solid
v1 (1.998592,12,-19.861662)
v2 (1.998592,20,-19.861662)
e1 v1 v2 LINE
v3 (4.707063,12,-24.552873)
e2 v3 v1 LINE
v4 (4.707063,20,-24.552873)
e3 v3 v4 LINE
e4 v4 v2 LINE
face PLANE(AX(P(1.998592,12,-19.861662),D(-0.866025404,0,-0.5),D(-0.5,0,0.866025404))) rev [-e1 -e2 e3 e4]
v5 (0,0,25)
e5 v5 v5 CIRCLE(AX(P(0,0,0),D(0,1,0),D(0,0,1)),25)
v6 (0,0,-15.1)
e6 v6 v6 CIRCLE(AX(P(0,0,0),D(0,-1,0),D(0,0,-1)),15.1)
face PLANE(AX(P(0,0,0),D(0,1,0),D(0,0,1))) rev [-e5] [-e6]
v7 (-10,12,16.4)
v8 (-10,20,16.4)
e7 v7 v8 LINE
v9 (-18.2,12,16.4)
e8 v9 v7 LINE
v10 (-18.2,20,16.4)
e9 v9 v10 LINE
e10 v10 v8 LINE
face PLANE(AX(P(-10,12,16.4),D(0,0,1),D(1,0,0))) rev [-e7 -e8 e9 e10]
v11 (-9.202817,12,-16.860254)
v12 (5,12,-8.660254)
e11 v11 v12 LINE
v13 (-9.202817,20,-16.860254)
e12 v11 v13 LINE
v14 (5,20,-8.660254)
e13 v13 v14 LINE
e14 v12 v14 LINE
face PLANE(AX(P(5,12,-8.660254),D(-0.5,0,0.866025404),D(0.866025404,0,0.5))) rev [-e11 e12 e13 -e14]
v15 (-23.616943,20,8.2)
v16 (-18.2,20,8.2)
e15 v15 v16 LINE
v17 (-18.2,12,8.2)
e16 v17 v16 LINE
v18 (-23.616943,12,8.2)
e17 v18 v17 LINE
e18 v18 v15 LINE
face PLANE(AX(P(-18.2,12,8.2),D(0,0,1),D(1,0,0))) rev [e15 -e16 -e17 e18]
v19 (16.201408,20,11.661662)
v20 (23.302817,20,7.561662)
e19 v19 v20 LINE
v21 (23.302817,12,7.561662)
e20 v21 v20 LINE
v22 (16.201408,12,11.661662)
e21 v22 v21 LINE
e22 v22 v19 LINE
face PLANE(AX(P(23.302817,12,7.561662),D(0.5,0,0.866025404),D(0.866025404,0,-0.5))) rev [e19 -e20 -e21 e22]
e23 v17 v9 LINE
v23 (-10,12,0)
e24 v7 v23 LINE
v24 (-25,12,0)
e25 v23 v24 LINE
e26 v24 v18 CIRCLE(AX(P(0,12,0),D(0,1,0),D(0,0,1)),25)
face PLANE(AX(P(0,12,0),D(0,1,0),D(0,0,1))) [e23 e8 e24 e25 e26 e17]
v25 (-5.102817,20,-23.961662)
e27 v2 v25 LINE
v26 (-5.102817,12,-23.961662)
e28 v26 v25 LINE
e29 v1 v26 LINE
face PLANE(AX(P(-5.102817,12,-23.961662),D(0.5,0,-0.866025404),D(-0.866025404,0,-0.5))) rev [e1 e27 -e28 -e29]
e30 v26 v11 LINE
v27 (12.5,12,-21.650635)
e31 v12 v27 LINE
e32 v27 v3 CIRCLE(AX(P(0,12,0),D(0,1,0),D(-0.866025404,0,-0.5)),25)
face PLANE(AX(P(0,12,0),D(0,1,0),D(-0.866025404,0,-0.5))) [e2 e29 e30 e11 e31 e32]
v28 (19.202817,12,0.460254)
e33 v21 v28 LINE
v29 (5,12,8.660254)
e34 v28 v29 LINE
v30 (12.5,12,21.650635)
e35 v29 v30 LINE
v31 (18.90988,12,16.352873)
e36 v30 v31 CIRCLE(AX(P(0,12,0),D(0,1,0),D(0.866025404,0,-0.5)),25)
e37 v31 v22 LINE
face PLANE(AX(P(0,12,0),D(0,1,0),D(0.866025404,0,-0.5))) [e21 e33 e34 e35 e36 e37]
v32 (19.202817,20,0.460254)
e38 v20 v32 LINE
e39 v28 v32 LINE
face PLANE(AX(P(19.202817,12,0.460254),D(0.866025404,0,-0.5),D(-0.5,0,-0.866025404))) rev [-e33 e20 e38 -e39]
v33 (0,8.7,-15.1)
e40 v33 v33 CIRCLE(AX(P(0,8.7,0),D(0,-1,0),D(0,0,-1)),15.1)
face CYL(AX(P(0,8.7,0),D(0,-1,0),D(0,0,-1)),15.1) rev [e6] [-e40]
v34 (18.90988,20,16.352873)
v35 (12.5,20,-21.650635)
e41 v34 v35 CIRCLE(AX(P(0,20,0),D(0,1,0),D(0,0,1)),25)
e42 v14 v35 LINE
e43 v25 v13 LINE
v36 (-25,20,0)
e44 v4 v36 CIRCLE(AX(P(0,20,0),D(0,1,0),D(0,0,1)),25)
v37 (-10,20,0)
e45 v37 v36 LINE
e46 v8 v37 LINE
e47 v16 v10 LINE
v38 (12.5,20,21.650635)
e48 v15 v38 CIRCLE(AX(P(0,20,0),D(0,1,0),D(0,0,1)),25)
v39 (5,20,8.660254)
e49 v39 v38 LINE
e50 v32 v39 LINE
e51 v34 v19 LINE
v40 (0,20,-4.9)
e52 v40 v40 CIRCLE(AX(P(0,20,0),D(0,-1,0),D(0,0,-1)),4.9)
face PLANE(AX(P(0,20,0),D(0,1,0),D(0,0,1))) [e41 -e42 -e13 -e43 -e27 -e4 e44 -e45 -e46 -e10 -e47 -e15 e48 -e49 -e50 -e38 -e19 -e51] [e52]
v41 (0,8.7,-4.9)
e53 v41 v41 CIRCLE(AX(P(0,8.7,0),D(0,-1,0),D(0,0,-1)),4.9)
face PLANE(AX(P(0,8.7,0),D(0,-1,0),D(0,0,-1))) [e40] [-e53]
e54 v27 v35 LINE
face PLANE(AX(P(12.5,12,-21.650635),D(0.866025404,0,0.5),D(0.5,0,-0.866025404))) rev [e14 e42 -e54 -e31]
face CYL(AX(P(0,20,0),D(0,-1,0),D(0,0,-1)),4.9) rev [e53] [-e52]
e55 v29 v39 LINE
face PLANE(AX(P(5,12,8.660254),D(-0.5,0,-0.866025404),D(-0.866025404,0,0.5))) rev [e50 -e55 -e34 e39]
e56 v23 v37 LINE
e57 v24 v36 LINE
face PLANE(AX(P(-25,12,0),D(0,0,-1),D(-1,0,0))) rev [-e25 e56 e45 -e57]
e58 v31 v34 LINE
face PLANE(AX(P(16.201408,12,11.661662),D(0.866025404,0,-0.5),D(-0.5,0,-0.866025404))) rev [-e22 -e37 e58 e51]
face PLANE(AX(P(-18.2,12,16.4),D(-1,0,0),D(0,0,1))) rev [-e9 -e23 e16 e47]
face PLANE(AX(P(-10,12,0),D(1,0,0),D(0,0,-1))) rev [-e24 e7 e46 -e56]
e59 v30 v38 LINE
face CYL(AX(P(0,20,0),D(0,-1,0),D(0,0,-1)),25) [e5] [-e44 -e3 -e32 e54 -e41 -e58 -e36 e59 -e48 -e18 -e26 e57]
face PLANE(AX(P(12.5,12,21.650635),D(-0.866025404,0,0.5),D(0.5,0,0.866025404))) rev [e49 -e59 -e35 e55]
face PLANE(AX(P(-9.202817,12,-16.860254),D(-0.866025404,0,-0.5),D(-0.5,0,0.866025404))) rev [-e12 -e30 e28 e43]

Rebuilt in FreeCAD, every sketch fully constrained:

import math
import FreeCAD as App
import Part
import Sketcher

doc = App.newDocument("Part")
params = doc.addObject("Spreadsheet::Sheet", "Params")
for row, (alias, value) in enumerate([
    ("sketch1_diameter", "50 mm"),
    ("pad1_length", "20 mm"),
    ("sketch2_radius", "25 mm"),
    ("sketch2_width", "15 mm"),
    ("sketch2_width2", "8.2 mm"),
    ("sketch2_height", "16.4 mm"),
    ("pocket1_length", "8 mm"),
    ("sketch3_diameter", "30.2 mm"),
    ("pocket2_length", "8.7 mm"),
    ("sketch4_diameter", "9.8 mm"),
], start=1):
    params.set(f"A{row}", alias)
    params.set(f"B{row}", "=" + value)
    params.setAlias(f"B{row}", alias)

body = doc.addObject("PartDesign::Body", "Body")

sketch1 = body.newObject("Sketcher::SketchObject", "Sketch")
sketch1.AttachmentSupport = (doc.getObject("XZ_Plane"), [""])
sketch1.MapMode = "FlatFace"
sketch1.addGeometry(Part.Circle(App.Vector(0, 0, 0), App.Vector(0, 0, 1), 25), False)
sketch1.addConstraint(Sketcher.Constraint("Coincident", 0, 3, -1, 1))
sketch1.addConstraint(Sketcher.Constraint("Diameter", 0, 50.0))
sketch1.setExpression("Constraints[1]", "Params.sketch1_diameter")
pad1 = body.newObject("PartDesign::Pad", "Pad")
pad1.Profile = sketch1
pad1.setExpression("Length", "Params.pad1_length")
pad1.Reversed = True

sketch2 = body.newObject("Sketcher::SketchObject", "Sketch001")
sketch2.AttachmentSupport = (doc.getObject("XZ_Plane"), [""])
sketch2.MapMode = "FlatFace"
sketch2.AttachmentOffset = App.Placement(App.Vector(0, 0, -12), App.Rotation())
sketch2.addGeometry(Part.LineSegment(App.Vector(-10, 0, 0), App.Vector(-25, 0, 0)), False)
sketch2.addGeometry(Part.ArcOfCircle(Part.Circle(App.Vector(0, 0, 0), App.Vector(0, 0, 1), 25), math.radians(160.852571), math.radians(180)), False)
sketch2.addGeometry(Part.LineSegment(App.Vector(-23.616943, 8.2, 0), App.Vector(-18.2, 8.2, 0)), False)
sketch2.addGeometry(Part.LineSegment(App.Vector(-18.2, 8.2, 0), App.Vector(-18.2, 16.4, 0)), False)
sketch2.addGeometry(Part.LineSegment(App.Vector(-18.2, 16.4, 0), App.Vector(-10, 16.4, 0)), False)
sketch2.addGeometry(Part.LineSegment(App.Vector(-10, 16.4, 0), App.Vector(-10, 0, 0)), False)
sketch2.addConstraint(Sketcher.Constraint("Coincident", 0, 2, 1, 2))
sketch2.addConstraint(Sketcher.Constraint("Coincident", 1, 1, 2, 1))
sketch2.addConstraint(Sketcher.Constraint("Coincident", 2, 2, 3, 1))
sketch2.addConstraint(Sketcher.Constraint("Coincident", 3, 2, 4, 1))
sketch2.addConstraint(Sketcher.Constraint("Coincident", 4, 2, 5, 1))
sketch2.addConstraint(Sketcher.Constraint("Coincident", 5, 2, 0, 1))
sketch2.addConstraint(Sketcher.Constraint("Horizontal", 0))
sketch2.addConstraint(Sketcher.Constraint("Horizontal", 2))
sketch2.addConstraint(Sketcher.Constraint("Vertical", 3))
sketch2.addConstraint(Sketcher.Constraint("Horizontal", 4))
sketch2.addConstraint(Sketcher.Constraint("Vertical", 5))
sketch2.addConstraint(Sketcher.Constraint("Coincident", 1, 3, -1, 1))
sketch2.addConstraint(Sketcher.Constraint("PointOnObject", 0, 2, -1))
sketch2.addConstraint(Sketcher.Constraint("Equal", 4, 3))
sketch2.addConstraint(Sketcher.Constraint("Radius", 1, 25.0))
sketch2.addConstraint(Sketcher.Constraint("DistanceX", 0, 2, 0, 1, 15.0))
sketch2.addConstraint(Sketcher.Constraint("DistanceX", 4, 1, 4, 2, 8.2))
sketch2.addConstraint(Sketcher.Constraint("DistanceY", 5, 2, 5, 1, 16.4))
sketch2.setExpression("Constraints[14]", "Params.sketch2_radius")
sketch2.setExpression("Constraints[15]", "Params.sketch2_width")
sketch2.setExpression("Constraints[16]", "Params.sketch2_width2")
sketch2.setExpression("Constraints[17]", "Params.sketch2_height")
pocket1 = body.newObject("PartDesign::Pocket", "Pocket")
pocket1.Profile = sketch2
pocket1.setExpression("Length", "Params.pocket1_length")
doc.recompute()

polarpattern = body.newObject("PartDesign::PolarPattern", "PolarPattern")
polarpattern.Originals = [pocket1]
polarpattern.Axis = (doc.getObject("Y_Axis"), [""])
polarpattern.Angle = 360
polarpattern.Occurrences = 3
body.Tip = polarpattern

sketch3 = body.newObject("Sketcher::SketchObject", "Sketch002")
sketch3.AttachmentSupport = (doc.getObject("XZ_Plane"), [""])
sketch3.MapMode = "FlatFace"
sketch3.addGeometry(Part.Circle(App.Vector(0, 0, 0), App.Vector(0, 0, 1), 15.1), False)
sketch3.addConstraint(Sketcher.Constraint("Coincident", 0, 3, -1, 1))
sketch3.addConstraint(Sketcher.Constraint("Diameter", 0, 30.2))
sketch3.setExpression("Constraints[1]", "Params.sketch3_diameter")
pocket2 = body.newObject("PartDesign::Pocket", "Pocket001")
pocket2.Profile = sketch3
pocket2.setExpression("Length", "Params.pocket2_length")

sketch4 = body.newObject("Sketcher::SketchObject", "Sketch003")
sketch4.AttachmentSupport = (doc.getObject("XZ_Plane"), [""])
sketch4.MapMode = "FlatFace"
sketch4.AttachmentOffset = App.Placement(App.Vector(0, 0, -8.7), App.Rotation())
sketch4.addGeometry(Part.Circle(App.Vector(0, 0, 0), App.Vector(0, 0, 1), 4.9), False)
sketch4.addConstraint(Sketcher.Constraint("Coincident", 0, 3, -1, 1))
sketch4.addConstraint(Sketcher.Constraint("Diameter", 0, 9.8))
sketch4.setExpression("Constraints[1]", "Params.sketch4_diameter")
pocket3 = body.newObject("PartDesign::Pocket", "Pocket002")
pocket3.Profile = sketch4
pocket3.Type = "ThroughAll"

doc.recompute()
